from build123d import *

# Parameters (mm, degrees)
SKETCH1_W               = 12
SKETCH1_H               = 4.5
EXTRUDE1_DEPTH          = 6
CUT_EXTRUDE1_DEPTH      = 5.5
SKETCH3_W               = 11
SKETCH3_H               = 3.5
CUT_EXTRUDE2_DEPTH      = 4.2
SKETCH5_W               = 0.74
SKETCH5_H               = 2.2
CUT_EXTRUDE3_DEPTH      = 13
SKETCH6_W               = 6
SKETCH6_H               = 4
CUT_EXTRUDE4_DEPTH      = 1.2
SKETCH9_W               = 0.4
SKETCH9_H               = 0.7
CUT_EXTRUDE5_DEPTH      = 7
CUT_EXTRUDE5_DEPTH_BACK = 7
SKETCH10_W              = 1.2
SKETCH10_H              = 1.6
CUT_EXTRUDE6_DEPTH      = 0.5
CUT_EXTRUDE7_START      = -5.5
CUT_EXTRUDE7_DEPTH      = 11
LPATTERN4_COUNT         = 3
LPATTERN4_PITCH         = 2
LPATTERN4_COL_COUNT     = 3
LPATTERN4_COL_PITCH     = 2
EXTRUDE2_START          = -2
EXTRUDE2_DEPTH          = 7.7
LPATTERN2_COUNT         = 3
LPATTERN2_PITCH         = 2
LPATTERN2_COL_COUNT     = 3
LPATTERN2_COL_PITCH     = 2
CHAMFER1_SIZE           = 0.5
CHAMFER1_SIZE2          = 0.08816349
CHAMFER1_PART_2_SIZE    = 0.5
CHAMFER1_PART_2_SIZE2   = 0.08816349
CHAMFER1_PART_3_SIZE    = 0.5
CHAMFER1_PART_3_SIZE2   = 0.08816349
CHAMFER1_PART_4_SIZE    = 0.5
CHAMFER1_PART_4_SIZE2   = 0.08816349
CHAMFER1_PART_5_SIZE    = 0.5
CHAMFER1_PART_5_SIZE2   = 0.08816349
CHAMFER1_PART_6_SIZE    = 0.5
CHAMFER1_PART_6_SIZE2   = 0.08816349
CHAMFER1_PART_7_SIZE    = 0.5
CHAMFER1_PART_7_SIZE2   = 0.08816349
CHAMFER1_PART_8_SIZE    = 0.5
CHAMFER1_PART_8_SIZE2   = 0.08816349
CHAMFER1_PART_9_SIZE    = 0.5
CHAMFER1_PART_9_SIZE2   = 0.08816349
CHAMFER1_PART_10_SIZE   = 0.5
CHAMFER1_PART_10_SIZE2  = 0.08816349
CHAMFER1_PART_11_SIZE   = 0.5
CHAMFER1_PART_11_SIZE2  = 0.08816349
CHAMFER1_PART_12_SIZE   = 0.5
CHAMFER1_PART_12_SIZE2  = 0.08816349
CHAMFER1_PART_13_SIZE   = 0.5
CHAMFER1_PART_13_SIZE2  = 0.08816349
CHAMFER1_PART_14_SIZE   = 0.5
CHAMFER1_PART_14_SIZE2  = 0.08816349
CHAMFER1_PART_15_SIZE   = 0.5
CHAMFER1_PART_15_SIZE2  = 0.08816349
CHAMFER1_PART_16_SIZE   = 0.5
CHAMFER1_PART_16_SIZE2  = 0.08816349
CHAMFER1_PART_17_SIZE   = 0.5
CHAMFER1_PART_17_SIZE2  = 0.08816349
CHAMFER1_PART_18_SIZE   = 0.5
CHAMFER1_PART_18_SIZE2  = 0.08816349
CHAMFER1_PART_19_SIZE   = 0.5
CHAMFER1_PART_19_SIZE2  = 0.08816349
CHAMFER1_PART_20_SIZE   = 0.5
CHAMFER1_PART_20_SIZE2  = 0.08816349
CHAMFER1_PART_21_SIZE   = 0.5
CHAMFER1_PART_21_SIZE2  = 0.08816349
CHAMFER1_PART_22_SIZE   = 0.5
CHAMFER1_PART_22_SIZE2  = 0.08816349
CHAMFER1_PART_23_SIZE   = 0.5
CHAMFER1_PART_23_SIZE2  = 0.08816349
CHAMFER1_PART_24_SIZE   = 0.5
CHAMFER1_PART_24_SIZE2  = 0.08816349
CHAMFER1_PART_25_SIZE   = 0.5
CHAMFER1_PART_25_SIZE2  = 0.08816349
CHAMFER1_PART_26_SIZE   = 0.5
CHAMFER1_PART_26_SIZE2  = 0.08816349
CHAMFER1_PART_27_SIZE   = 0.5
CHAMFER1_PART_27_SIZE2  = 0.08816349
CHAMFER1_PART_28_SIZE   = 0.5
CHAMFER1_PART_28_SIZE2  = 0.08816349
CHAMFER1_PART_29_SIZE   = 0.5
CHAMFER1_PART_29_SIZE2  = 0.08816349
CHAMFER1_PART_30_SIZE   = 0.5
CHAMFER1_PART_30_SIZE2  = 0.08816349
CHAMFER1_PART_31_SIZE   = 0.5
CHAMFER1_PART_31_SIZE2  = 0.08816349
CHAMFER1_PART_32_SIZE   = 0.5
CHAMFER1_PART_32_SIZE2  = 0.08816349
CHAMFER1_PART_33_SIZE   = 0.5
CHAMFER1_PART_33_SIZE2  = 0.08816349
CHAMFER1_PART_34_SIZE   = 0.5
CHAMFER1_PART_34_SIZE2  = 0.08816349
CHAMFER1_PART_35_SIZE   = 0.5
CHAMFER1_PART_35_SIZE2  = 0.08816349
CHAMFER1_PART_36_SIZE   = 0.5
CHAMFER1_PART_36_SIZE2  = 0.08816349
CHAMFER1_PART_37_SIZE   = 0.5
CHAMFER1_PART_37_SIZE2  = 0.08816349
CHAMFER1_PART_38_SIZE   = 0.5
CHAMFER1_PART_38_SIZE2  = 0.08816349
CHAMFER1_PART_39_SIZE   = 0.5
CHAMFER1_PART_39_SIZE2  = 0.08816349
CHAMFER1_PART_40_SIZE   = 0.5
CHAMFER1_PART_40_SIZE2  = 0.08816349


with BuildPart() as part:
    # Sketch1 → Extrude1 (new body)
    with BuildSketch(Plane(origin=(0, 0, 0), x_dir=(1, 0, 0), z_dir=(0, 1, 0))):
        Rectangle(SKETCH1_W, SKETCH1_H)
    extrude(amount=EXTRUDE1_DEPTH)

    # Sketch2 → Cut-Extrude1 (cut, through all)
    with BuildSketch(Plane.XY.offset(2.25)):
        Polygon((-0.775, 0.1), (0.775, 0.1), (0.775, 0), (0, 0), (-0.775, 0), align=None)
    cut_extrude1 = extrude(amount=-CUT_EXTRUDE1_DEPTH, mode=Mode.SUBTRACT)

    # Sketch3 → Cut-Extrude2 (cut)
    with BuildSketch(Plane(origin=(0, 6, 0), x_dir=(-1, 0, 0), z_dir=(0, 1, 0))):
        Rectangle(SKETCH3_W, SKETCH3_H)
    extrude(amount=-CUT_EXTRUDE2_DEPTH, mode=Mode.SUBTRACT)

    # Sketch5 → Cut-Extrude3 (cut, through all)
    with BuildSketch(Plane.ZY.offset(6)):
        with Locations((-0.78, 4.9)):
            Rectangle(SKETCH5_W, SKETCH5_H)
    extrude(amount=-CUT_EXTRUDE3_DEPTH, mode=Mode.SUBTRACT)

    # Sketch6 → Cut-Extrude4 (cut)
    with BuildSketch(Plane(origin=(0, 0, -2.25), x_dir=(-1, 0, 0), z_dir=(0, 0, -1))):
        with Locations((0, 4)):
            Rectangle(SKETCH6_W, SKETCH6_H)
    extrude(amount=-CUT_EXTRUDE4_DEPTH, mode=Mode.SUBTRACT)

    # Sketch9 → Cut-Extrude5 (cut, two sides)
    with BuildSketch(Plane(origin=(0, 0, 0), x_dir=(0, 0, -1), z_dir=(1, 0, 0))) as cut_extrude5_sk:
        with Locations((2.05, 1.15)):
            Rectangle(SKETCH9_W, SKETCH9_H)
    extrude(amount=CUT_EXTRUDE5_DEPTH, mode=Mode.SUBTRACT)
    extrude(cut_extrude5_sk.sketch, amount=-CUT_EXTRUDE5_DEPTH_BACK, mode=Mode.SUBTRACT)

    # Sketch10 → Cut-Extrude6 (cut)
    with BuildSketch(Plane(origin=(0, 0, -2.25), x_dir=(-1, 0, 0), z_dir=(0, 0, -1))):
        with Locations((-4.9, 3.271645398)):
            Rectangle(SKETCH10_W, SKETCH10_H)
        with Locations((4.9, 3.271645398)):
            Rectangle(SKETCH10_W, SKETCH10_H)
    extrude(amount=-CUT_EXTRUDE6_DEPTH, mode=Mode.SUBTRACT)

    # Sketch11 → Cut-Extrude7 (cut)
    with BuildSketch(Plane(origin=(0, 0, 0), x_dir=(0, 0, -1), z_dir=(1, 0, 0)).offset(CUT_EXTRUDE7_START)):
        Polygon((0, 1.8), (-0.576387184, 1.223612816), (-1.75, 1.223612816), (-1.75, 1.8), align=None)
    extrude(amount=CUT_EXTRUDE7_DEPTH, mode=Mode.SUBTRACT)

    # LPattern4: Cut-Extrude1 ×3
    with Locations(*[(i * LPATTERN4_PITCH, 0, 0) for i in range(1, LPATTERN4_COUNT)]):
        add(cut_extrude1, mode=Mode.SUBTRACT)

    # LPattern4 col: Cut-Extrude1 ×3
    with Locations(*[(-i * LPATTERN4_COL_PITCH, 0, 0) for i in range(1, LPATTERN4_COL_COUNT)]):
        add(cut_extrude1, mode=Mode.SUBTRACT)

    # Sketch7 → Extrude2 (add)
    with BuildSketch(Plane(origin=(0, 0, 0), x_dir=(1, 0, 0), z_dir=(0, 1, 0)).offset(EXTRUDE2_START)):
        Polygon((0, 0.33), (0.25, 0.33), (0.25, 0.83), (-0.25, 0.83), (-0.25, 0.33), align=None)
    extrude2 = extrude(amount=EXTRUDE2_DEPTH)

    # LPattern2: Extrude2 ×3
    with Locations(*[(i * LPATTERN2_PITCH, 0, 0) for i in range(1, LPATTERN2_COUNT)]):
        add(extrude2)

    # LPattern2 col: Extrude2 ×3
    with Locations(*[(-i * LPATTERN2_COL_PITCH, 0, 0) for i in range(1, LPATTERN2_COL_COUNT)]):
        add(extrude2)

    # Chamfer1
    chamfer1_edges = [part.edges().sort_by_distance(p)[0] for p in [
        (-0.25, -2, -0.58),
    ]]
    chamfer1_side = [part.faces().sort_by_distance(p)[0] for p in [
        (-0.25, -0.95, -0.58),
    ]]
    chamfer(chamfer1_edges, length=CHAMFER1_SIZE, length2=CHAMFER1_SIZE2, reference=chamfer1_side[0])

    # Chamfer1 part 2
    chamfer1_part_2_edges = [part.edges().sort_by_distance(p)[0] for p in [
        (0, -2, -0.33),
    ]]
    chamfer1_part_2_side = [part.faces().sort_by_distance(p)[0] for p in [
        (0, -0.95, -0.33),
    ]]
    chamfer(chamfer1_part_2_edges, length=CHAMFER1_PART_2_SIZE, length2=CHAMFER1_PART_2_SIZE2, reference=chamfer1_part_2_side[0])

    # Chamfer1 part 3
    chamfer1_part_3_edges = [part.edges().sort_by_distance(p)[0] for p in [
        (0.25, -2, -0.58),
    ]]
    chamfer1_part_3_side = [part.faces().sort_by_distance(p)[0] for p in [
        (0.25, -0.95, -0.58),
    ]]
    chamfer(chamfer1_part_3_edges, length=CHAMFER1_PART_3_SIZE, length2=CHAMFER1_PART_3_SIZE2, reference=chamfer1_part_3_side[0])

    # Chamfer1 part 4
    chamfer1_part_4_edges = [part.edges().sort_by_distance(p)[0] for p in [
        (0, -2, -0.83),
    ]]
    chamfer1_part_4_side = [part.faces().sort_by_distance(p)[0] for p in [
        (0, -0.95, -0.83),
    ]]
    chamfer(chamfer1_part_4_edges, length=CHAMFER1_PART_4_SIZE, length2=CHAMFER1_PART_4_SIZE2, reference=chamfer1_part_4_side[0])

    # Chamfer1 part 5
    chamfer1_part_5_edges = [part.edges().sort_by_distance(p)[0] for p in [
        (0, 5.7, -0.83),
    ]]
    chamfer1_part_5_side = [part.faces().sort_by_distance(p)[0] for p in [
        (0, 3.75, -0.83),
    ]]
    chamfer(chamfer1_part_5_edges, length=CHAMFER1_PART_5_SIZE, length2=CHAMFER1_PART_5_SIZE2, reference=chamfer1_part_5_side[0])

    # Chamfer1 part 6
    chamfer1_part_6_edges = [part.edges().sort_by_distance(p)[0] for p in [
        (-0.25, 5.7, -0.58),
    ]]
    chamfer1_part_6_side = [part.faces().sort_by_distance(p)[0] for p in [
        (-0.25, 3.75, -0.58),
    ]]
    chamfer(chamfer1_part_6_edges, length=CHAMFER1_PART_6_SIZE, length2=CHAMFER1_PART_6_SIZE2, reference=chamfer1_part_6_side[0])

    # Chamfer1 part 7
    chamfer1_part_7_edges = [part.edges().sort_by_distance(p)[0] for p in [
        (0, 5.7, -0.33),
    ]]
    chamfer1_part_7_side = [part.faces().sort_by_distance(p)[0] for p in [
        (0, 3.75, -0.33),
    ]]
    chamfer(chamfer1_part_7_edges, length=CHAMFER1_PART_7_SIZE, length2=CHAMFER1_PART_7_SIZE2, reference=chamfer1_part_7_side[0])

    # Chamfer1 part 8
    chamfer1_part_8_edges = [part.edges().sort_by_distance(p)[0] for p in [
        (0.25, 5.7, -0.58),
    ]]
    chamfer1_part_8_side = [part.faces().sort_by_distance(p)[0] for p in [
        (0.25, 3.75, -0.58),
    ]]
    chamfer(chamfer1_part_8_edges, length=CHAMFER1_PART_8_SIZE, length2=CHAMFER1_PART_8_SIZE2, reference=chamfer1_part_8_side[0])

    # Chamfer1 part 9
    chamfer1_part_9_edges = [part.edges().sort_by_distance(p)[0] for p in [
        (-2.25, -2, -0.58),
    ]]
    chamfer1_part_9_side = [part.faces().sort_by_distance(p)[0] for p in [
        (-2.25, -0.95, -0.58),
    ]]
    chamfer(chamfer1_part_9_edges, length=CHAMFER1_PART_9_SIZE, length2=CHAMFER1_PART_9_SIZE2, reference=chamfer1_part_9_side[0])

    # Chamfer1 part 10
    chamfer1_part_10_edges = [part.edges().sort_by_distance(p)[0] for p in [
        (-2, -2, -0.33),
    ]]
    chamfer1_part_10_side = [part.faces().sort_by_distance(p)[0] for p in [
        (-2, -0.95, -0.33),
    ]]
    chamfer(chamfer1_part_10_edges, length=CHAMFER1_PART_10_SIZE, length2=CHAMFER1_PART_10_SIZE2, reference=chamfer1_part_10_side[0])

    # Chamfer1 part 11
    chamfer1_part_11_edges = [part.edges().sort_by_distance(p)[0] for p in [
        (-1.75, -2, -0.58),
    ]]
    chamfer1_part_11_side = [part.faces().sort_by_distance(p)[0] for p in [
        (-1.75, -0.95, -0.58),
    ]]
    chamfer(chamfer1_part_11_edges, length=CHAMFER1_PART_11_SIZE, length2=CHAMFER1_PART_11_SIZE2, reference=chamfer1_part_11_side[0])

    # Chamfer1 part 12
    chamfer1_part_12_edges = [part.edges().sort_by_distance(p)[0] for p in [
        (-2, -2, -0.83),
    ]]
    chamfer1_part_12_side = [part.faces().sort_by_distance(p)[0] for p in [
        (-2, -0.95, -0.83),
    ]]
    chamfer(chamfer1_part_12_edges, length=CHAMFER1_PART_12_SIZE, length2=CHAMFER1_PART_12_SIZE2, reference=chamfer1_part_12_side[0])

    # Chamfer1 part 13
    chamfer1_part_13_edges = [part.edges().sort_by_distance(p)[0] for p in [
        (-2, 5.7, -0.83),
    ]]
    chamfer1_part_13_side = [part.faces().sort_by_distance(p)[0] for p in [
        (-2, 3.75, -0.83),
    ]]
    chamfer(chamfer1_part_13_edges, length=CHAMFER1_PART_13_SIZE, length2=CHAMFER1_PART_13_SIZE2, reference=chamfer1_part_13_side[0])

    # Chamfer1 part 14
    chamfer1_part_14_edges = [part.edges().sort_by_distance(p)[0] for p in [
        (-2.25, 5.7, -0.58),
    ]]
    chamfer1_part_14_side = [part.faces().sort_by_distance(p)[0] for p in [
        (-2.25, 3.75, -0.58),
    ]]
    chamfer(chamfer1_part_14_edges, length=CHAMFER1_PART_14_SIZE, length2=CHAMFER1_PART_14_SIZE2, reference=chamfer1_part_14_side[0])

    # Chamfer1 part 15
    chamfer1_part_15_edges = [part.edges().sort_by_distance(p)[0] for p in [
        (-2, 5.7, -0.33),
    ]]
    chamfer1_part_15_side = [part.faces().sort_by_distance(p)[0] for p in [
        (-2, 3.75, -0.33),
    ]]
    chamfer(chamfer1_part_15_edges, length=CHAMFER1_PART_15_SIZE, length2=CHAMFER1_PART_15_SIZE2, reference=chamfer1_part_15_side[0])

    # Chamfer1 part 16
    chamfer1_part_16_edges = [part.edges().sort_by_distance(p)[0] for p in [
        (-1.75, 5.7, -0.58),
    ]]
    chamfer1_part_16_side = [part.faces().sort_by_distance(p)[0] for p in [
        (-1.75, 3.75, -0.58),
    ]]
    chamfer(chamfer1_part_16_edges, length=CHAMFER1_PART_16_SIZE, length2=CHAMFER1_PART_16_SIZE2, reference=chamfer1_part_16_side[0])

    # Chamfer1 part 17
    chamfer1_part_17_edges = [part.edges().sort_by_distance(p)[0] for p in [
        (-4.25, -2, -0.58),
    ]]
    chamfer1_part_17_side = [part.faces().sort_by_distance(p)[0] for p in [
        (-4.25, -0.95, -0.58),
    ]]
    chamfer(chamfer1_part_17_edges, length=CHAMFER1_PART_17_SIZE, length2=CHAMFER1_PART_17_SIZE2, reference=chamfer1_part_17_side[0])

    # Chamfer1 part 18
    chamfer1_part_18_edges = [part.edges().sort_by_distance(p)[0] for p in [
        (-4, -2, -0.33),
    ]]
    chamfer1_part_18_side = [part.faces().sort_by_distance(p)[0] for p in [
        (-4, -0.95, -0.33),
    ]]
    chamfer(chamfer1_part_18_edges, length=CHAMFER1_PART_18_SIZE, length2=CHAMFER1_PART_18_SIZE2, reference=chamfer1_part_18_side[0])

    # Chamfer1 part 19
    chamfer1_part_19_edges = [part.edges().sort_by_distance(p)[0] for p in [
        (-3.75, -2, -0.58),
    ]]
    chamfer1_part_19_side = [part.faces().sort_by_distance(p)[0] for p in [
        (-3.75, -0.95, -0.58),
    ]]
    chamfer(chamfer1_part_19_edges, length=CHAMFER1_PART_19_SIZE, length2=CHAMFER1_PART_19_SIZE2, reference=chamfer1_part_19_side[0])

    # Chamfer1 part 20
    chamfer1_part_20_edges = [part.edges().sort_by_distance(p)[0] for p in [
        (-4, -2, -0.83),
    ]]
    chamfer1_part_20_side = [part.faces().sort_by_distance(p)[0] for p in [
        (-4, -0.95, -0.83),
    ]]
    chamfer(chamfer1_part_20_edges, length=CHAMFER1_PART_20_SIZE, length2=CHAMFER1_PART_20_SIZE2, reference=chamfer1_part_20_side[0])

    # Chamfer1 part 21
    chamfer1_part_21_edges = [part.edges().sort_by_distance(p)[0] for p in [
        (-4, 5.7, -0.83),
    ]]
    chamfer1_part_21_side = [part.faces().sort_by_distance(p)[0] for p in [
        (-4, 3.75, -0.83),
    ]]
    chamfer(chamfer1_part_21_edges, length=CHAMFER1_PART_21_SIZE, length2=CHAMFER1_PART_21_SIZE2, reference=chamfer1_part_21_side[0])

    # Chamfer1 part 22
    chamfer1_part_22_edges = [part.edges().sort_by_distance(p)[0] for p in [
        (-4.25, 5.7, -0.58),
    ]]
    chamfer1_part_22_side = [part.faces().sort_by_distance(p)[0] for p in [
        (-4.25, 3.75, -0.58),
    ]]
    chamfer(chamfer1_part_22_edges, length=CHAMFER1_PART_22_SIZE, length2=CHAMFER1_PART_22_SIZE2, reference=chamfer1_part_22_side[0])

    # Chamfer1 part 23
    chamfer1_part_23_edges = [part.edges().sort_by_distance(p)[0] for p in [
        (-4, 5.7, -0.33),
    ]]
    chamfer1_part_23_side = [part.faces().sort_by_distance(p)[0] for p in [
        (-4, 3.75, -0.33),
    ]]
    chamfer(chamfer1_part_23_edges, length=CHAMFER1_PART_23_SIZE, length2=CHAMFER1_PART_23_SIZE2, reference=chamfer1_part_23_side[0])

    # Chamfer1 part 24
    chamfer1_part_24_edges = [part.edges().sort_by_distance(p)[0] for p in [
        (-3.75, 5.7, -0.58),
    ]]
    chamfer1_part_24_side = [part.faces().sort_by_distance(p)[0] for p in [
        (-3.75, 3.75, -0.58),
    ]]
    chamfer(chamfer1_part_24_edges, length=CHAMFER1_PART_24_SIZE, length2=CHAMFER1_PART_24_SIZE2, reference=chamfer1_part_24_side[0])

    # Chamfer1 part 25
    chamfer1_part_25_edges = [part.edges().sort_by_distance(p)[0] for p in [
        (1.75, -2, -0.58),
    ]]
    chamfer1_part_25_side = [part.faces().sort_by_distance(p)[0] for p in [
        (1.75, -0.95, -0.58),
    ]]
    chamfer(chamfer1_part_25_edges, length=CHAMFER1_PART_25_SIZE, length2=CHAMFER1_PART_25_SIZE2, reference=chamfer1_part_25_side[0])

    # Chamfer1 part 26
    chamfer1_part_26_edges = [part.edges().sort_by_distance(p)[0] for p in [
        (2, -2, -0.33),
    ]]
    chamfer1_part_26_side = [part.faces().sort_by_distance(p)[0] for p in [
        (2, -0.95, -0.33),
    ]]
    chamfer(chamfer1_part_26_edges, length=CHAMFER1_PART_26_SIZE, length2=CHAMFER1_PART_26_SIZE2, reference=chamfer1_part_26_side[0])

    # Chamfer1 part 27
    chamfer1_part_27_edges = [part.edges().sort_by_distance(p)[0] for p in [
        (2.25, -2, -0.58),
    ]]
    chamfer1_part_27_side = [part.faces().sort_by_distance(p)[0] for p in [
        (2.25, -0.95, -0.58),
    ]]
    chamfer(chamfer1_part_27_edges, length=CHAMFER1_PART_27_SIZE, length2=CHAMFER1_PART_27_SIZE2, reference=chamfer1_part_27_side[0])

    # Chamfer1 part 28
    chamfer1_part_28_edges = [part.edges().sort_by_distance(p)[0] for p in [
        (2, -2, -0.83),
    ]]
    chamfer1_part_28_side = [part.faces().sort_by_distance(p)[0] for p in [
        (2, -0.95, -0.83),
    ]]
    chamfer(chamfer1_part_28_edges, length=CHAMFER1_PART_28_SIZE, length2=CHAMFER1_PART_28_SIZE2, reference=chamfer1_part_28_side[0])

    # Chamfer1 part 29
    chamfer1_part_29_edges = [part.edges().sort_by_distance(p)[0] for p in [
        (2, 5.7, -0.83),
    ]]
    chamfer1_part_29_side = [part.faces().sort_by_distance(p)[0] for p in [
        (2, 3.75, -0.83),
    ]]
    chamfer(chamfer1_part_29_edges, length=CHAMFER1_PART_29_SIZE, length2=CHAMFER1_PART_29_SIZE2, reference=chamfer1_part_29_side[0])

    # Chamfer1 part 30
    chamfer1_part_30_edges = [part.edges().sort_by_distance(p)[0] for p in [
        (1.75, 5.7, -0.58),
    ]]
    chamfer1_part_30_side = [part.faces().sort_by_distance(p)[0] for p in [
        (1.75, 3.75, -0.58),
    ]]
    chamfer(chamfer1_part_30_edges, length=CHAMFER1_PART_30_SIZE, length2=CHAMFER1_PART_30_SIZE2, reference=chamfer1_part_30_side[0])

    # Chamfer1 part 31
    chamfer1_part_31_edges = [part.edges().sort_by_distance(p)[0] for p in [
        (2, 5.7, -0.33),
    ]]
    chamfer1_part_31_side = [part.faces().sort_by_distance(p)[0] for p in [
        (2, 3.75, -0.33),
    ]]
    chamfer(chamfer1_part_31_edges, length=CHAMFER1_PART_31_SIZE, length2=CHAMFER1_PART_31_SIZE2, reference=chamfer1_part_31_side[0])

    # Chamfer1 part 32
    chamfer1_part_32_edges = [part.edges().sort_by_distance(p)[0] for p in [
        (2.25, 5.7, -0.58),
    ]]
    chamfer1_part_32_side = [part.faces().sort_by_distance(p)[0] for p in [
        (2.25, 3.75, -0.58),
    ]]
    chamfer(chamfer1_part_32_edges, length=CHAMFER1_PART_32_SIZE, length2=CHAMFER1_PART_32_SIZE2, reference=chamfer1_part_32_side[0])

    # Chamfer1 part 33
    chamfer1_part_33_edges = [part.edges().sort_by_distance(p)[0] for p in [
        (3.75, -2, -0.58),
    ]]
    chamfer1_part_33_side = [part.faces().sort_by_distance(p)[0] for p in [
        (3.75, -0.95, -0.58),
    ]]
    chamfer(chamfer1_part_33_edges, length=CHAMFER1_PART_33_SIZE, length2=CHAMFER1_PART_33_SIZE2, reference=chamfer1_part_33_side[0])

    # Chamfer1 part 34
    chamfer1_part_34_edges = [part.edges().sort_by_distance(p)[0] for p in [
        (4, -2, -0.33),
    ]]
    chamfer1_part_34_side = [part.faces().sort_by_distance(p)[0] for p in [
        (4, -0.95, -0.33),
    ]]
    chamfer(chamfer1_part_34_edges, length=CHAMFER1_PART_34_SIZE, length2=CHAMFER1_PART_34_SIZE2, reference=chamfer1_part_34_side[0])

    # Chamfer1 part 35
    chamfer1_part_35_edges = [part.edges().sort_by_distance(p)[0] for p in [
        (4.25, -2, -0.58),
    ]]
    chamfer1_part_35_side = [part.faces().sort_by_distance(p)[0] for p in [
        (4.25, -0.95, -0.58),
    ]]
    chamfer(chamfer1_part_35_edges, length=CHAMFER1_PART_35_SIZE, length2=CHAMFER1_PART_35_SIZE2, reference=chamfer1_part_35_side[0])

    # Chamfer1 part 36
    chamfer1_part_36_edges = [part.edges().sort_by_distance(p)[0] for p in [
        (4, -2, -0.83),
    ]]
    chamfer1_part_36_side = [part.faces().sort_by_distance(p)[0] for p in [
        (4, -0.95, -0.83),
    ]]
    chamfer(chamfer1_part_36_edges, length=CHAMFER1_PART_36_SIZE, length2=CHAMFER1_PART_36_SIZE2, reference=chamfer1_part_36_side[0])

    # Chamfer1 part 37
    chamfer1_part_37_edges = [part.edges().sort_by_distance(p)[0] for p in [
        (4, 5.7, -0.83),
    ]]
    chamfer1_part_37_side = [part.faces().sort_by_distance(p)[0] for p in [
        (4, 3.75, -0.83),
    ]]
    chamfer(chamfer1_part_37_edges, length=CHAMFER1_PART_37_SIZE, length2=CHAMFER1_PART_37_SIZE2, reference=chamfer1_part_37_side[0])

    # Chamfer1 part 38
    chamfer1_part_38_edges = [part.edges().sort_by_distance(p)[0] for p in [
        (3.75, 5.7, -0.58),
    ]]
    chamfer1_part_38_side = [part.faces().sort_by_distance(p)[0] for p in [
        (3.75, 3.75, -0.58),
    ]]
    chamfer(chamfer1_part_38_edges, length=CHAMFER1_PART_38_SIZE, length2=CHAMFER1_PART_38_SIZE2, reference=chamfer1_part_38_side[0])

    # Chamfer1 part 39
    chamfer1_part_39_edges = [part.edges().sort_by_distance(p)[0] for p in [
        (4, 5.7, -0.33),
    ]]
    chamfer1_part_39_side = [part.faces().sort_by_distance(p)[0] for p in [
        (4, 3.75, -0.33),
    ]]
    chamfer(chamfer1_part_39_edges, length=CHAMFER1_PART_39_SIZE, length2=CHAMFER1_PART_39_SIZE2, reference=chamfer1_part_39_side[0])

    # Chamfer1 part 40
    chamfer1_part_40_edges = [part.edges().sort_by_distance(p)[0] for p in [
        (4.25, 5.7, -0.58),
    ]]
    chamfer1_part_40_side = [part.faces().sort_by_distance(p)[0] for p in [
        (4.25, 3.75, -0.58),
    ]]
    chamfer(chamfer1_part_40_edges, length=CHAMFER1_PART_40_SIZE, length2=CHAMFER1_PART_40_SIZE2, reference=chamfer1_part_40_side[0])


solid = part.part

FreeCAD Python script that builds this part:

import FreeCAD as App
import Part
import Sketcher

V = App.Vector
Q = App.Units.Quantity


def edges_at(feature, points):
    """Names of the edges that pass closest to the given points."""
    edges = feature.Shape.Edges
    near = lambda p: min(range(len(edges)), key=lambda i: edges[i].distToShape(Part.Vertex(*p))[0])
    return sorted({f"Edge{near(p) + 1}" for p in points})


def add_polygon(sketch, points):
    """Adds a closed chain of lines whose ends are joined by coincident constraints."""
    first, n = sketch.GeometryCount, len(points)
    for a, b in zip(points, points[1:] + points[:1]):
        sketch.addGeometry(Part.LineSegment(App.Vector(*a, 0), App.Vector(*b, 0)), False)
    for i in range(n):
        sketch.addConstraint(Sketcher.Constraint("Coincident", first + i, 2, first + (i + 1) % n, 1))

doc = App.newDocument("Part")
body = doc.addObject("PartDesign::Body", "Body")

# Sketch on XZ plane
sketch1 = doc.addObject("Sketcher::SketchObject", "Sketch")
body.addObject(sketch1)
sketch1.AttachmentSupport = (doc.XZ_Plane, [""])
sketch1.MapMode = "FlatFace"
add_polygon(sketch1, [(-6, -2.25), (-6, 2.25), (6, 2.25), (6, -2.25)])  # lines 0-3
sketch1.addConstraint([
    Sketcher.Constraint("Vertical", 0),
    Sketcher.Constraint("Horizontal", 1),
    Sketcher.Constraint("Vertical", 2),
    Sketcher.Constraint("Horizontal", 3),
    Sketcher.Constraint("Symmetric", 0, 2, 2, 2, -1, 1),
    Sketcher.Constraint("DistanceX", 1, 1, 1, 2, Q("12 mm")),
    Sketcher.Constraint("DistanceY", 0, 1, 0, 2, Q("4.5 mm")),
])
pad1 = doc.addObject("PartDesign::Pad", "Pad")
body.addObject(pad1)
pad1.Profile = sketch1
pad1.Length = 6
pad1.Reversed = True

# Sketch on XY plane
sketch2 = doc.addObject("Sketcher::SketchObject", "Sketch001")
body.addObject(sketch2)
sketch2.AttachmentSupport = (doc.XY_Plane, [""])
sketch2.MapMode = "FlatFace"
sketch2.AttachmentOffset = App.Placement(V(0, 0, 2.25), App.Rotation())
add_polygon(sketch2, [(0.775, 0.1), (-0.775, 0.1), (-0.775, 0), (0.775, 0)])  # lines 0-3
sketch2.addConstraint([
    Sketcher.Constraint("Horizontal", 0),
    Sketcher.Constraint("Vertical", 1),
    Sketcher.Constraint("Horizontal", 2),
    Sketcher.Constraint("Vertical", 3),
    Sketcher.Constraint("Symmetric", 1, 2, 2, 2, -1, 1),
    Sketcher.Constraint("DistanceY", 1, 2, 1, 1, Q("0.1 mm")),
    Sketcher.Constraint("DistanceX", 0, 2, 0, 1, Q("1.55 mm")),
])
pocket1 = doc.addObject("PartDesign::Pocket", "Pocket")
body.addObject(pocket1)
pocket1.Profile = sketch2
pocket1.Type = "ThroughAll"

# Sketch on XZ plane
sketch3 = doc.addObject("Sketcher::SketchObject", "Sketch002")
body.addObject(sketch3)
sketch3.AttachmentSupport = (doc.XZ_Plane, [""])
sketch3.MapMode = "FlatFace"
sketch3.AttachmentOffset = App.Placement(V(0, 0, -6), App.Rotation())
add_polygon(sketch3, [(5.5, 1.75), (5.5, -1.75), (-5.5, -1.75), (-5.5, 1.75)])  # lines 0-3
sketch3.addConstraint([
    Sketcher.Constraint("Vertical", 0),
    Sketcher.Constraint("Horizontal", 1),
    Sketcher.Constraint("Vertical", 2),
    Sketcher.Constraint("Horizontal", 3),
    Sketcher.Constraint("Symmetric", 0, 2, 2, 2, -1, 1),
    Sketcher.Constraint("DistanceX", 1, 2, 1, 1, Q("11 mm")),
    Sketcher.Constraint("DistanceY", 0, 2, 0, 1, Q("3.5 mm")),
])
pocket2 = doc.addObject("PartDesign::Pocket", "Pocket001")
body.addObject(pocket2)
pocket2.Profile = sketch3
pocket2.Length = 4.2
pocket2.Reversed = True

# Sketch on YZ plane
sketch4 = doc.addObject("Sketcher::SketchObject", "Sketch003")
body.addObject(sketch4)
sketch4.AttachmentSupport = (doc.YZ_Plane, [""])
sketch4.MapMode = "FlatFace"
sketch4.AttachmentOffset = App.Placement(V(0, 0, -6), App.Rotation())
add_polygon(sketch4, [(6, -1.15), (3.8, -1.15), (3.8, -0.41), (6, -0.41)])  # lines 0-3
sketch4.addConstraint([
    Sketcher.Constraint("Horizontal", 0),
    Sketcher.Constraint("Vertical", 1),
    Sketcher.Constraint("Horizontal", 2),
    Sketcher.Constraint("Vertical", 3),
    Sketcher.Constraint("DistanceX", 0, 2, 0, 1, Q("2.2 mm")),
    Sketcher.Constraint("DistanceX", -1, 1, 2, 2, Q("6 mm")),
    Sketcher.Constraint("DistanceY", 1, 1, 1, 2, Q("0.74 mm")),
    Sketcher.Constraint("DistanceY", 0, 2, -1, 1, Q("1.15 mm")),
])
pocket3 = doc.addObject("PartDesign::Pocket", "Pocket002")
body.addObject(pocket3)
pocket3.Profile = sketch4
pocket3.Type = "ThroughAll"
pocket3.Reversed = True

# Sketch on XY plane
sketch5 = doc.addObject("Sketcher::SketchObject", "Sketch004")
body.addObject(sketch5)
sketch5.AttachmentSupport = (doc.XY_Plane, [""])
sketch5.MapMode = "FlatFace"
sketch5.AttachmentOffset = App.Placement(V(0, 0, -2.25), App.Rotation())
add_polygon(sketch5, [(3, 6), (3, 2), (-3, 2), (-3, 6)])  # lines 0-3
sketch5.addConstraint([
    Sketcher.Constraint("Vertical", 0),
    Sketcher.Constraint("Horizontal", 1),
    Sketcher.Constraint("Vertical", 2),
    Sketcher.Constraint("Horizontal", 3),
    Sketcher.Constraint("DistanceX", 1, 2, 1, 1, Q("6 mm")),
    Sketcher.Constraint("DistanceY", 0, 2, 0, 1, Q("4 mm")),
    Sketcher.Constraint("DistanceX", -1, 1, 0, 2, Q("3 mm")),
    Sketcher.Constraint("DistanceY", -1, 1, 0, 2, Q("2 mm")),
])
pocket4 = doc.addObject("PartDesign::Pocket", "Pocket003")
body.addObject(pocket4)
pocket4.Profile = sketch5
pocket4.Length = 1.2
pocket4.Reversed = True

# Sketch on YZ plane
sketch6 = doc.addObject("Sketcher::SketchObject", "Sketch005")
body.addObject(sketch6)
sketch6.AttachmentSupport = (doc.YZ_Plane, [""])
sketch6.MapMode = "FlatFace"
add_polygon(sketch6, [(1.5, -1.85), (0.8, -1.85), (0.8, -2.25), (1.5, -2.25)])  # lines 0-3
sketch6.addConstraint([
    Sketcher.Constraint("Horizontal", 0),
    Sketcher.Constraint("Vertical", 1),
    Sketcher.Constraint("Horizontal", 2),
    Sketcher.Constraint("Vertical", 3),
    Sketcher.Constraint("DistanceX", 0, 2, 0, 1, Q("0.7 mm")),
    Sketcher.Constraint("DistanceY", 1, 2, 1, 1, Q("0.4 mm")),
    Sketcher.Constraint("DistanceX", -1, 1, 0, 2, Q("0.8 mm")),
    Sketcher.Constraint("DistanceY", 0, 2, -1, 1, Q("1.85 mm")),
])
pocket5 = doc.addObject("PartDesign::Pocket", "Pocket004")
body.addObject(pocket5)
pocket5.Profile = sketch6
pocket5.Type = "ThroughAll"
pocket5.Midplane = True

# Sketch on XY plane
sketch7 = doc.addObject("Sketcher::SketchObject", "Sketch006")
body.addObject(sketch7)
sketch7.AttachmentSupport = (doc.XY_Plane, [""])
sketch7.MapMode = "FlatFace"
sketch7.AttachmentOffset = App.Placement(V(0, 0, -2.25), App.Rotation())
add_polygon(sketch7, [(5.5, 4.071645), (5.5, 2.471645), (4.3, 2.471645), (4.3, 4.071645)])  # lines 0-3
add_polygon(sketch7, [(-4.3, 4.071645), (-4.3, 2.471645), (-5.5, 2.471645), (-5.5, 4.071645)])  # lines 4-7
sketch7.addConstraint([
    Sketcher.Constraint("Vertical", 0),
    Sketcher.Constraint("Horizontal", 1),
    Sketcher.Constraint("Vertical", 2),
    Sketcher.Constraint("Horizontal", 3),
    Sketcher.Constraint("Vertical", 4),
    Sketcher.Constraint("Horizontal", 5),
    Sketcher.Constraint("Vertical", 6),
    Sketcher.Constraint("Horizontal", 7),
    Sketcher.Constraint("Symmetric", 1, 2, 4, 2, -2),
    Sketcher.Constraint("Symmetric", 3, 2, 6, 2, -2),
    Sketcher.Constraint("DistanceX", 1, 2, 1, 1, Q("1.2 mm")),
    Sketcher.Constraint("DistanceY", 0, 2, 0, 1, Q("1.6 mm")),
    Sketcher.Constraint("DistanceX", 5, 2, 0, 2, Q("11 mm")),
    Sketcher.Constraint("DistanceY", -1, 1, 0, 2, Q("2.471645 mm")),
])
pocket6 = doc.addObject("PartDesign::Pocket", "Pocket005")
body.addObject(pocket6)
pocket6.Profile = sketch7
pocket6.Length = 0.5
pocket6.Reversed = True

# Sketch on YZ plane
sketch8 = doc.addObject("Sketcher::SketchObject", "Sketch007")
body.addObject(sketch8)
sketch8.AttachmentSupport = (doc.YZ_Plane, [""])
sketch8.MapMode = "FlatFace"
sketch8.AttachmentOffset = App.Placement(V(0, 0, -5.5), App.Rotation())
add_polygon(sketch8, [(1.223613, 0.576387), (1.8, 0), (1.8, 1.75), (1.223613, 1.75)])  # lines 0-3
sketch8.addConstraint([
    Sketcher.Constraint("Vertical", 1),
    Sketcher.Constraint("Horizontal", 2),
    Sketcher.Constraint("Vertical", 3),
    Sketcher.Constraint("PointOnObject", 0, 2, -1),
    Sketcher.Constraint("Angle", 0, Q("-45 deg")),
    Sketcher.Constraint("DistanceY", 1, 1, 1, 2, Q("1.75 mm")),
    Sketcher.Constraint("DistanceX", -1, 1, 0, 2, Q("1.8 mm")),
    Sketcher.Constraint("DistanceX", 2, 2, 2, 1, Q("0.576387 mm")),
])
pocket7 = doc.addObject("PartDesign::Pocket", "Pocket006")
body.addObject(pocket7)
pocket7.Profile = sketch8
pocket7.Length = 11
pocket7.Reversed = True
doc.recompute()

linearpattern = doc.addObject("PartDesign::LinearPattern", "LinearPattern")
body.addObject(linearpattern)
linearpattern.Originals = [pocket1]
linearpattern.Direction = (doc.X_Axis, [""])
linearpattern.Mode = "offset"
linearpattern.Offset = 2
linearpattern.Occurrences = 3
body.Tip = linearpattern
doc.recompute()

linearpattern2 = doc.addObject("PartDesign::LinearPattern", "LinearPattern001")
body.addObject(linearpattern2)
linearpattern2.Originals = [pocket1]
linearpattern2.Direction = (doc.X_Axis, [""])
linearpattern2.Mode = "offset"
linearpattern2.Offset = 2
linearpattern2.Occurrences = 3
linearpattern2.Reversed = True
body.Tip = linearpattern2

# Sketch on XZ plane
sketch9 = doc.addObject("Sketcher::SketchObject", "Sketch008")
body.addObject(sketch9)
sketch9.AttachmentSupport = (doc.XZ_Plane, [""])
sketch9.MapMode = "FlatFace"
sketch9.AttachmentOffset = App.Placement(V(0, 0, 2), App.Rotation())
add_polygon(sketch9, [(0.25, -0.33), (0.25, -0.83), (-0.25, -0.83), (-0.25, -0.33)])  # lines 0-3
sketch9.addConstraint([
    Sketcher.Constraint("Vertical", 0),
    Sketcher.Constraint("Horizontal", 1),
    Sketcher.Constraint("Vertical", 2),
    Sketcher.Constraint("Horizontal", 3),
    Sketcher.Constraint("Equal", 3, 0),
    Sketcher.Constraint("DistanceX", 1, 2, 1, 1, Q("0.5 mm")),
    Sketcher.Constraint("DistanceX", -1, 1, 0, 2, Q("0.25 mm")),
    Sketcher.Constraint("DistanceY", 0, 2, -1, 1, Q("0.83 mm")),
])
pad2 = doc.addObject("PartDesign::Pad", "Pad001")
body.addObject(pad2)
pad2.Profile = sketch9
pad2.Length = 7.7
pad2.Reversed = True
doc.recompute()

linearpattern3 = doc.addObject("PartDesign::LinearPattern", "LinearPattern002")
body.addObject(linearpattern3)
linearpattern3.Originals = [pad2]
linearpattern3.Direction = (doc.X_Axis, [""])
linearpattern3.Mode = "offset"
linearpattern3.Offset = 2
linearpattern3.Occurrences = 3
body.Tip = linearpattern3
doc.recompute()

linearpattern4 = doc.addObject("PartDesign::LinearPattern", "LinearPattern003")
body.addObject(linearpattern4)
linearpattern4.Originals = [pad2]
linearpattern4.Direction = (doc.X_Axis, [""])
linearpattern4.Mode = "offset"
linearpattern4.Offset = 2
linearpattern4.Occurrences = 3
linearpattern4.Reversed = True
body.Tip = linearpattern4
doc.recompute()

chamfer = doc.addObject("PartDesign::Chamfer", "Chamfer")
body.addObject(chamfer)
chamfer.Base = (linearpattern4, edges_at(linearpattern4, [(-0.25, -2, -0.58)]))
chamfer.ChamferType = "Two distances"
chamfer.Size = 0.5
chamfer.Size2 = 0.088163
doc.recompute()

chamfer2 = doc.addObject("PartDesign::Chamfer", "Chamfer001")
body.addObject(chamfer2)
chamfer2.Base = (chamfer, edges_at(chamfer, [(0.044, -2, -0.33)]))
chamfer2.ChamferType = "Two distances"
chamfer2.Size = 0.5
chamfer2.Size2 = 0.088163
chamfer2.FlipDirection = True
doc.recompute()

chamfer3 = doc.addObject("PartDesign::Chamfer", "Chamfer002")
body.addObject(chamfer3)
chamfer3.Base = (chamfer2, edges_at(chamfer2, [(0.25, -2, -0.624)]))
chamfer3.ChamferType = "Two distances"
chamfer3.Size = 0.5
chamfer3.Size2 = 0.088163
chamfer3.FlipDirection = True
doc.recompute()

chamfer4 = doc.addObject("PartDesign::Chamfer", "Chamfer003")
body.addObject(chamfer4)
chamfer4.Base = (chamfer3, edges_at(chamfer3, [(0, -2, -0.83)]))
chamfer4.ChamferType = "Two distances"
chamfer4.Size = 0.5
chamfer4.Size2 = 0.088163
chamfer4.FlipDirection = True
doc.recompute()

chamfer5 = doc.addObject("PartDesign::Chamfer", "Chamfer004")
body.addObject(chamfer5)
chamfer5.Base = (chamfer4, edges_at(chamfer4, [(0, 5.7, -0.83)]))
chamfer5.ChamferType = "Two distances"
chamfer5.Size = 0.5
chamfer5.Size2 = 0.088163
doc.recompute()

chamfer6 = doc.addObject("PartDesign::Chamfer", "Chamfer005")
body.addObject(chamfer6)
chamfer6.Base = (chamfer5, edges_at(chamfer5, [(-0.25, 5.7, -0.536)]))
chamfer6.ChamferType = "Two distances"
chamfer6.Size = 0.5
chamfer6.Size2 = 0.088163
doc.recompute()

chamfer7 = doc.addObject("PartDesign::Chamfer", "Chamfer006")
body.addObject(chamfer7)
chamfer7.Base = (chamfer6, edges_at(chamfer6, [(0.044, 5.7, -0.33)]))
chamfer7.ChamferType = "Two distances"
chamfer7.Size = 0.5
chamfer7.Size2 = 0.088163
doc.recompute()

chamfer8 = doc.addObject("PartDesign::Chamfer", "Chamfer007")
body.addObject(chamfer8)
chamfer8.Base = (chamfer7, edges_at(chamfer7, [(0.25, 5.7, -0.58)]))
chamfer8.ChamferType = "Two distances"
chamfer8.Size = 0.5
chamfer8.Size2 = 0.088163
doc.recompute()

chamfer9 = doc.addObject("PartDesign::Chamfer", "Chamfer008")
body.addObject(chamfer9)
chamfer9.Base = (chamfer8, edges_at(chamfer8, [(-2.25, -2, -0.58)]))
chamfer9.ChamferType = "Two distances"
chamfer9.Size = 0.5
chamfer9.Size2 = 0.088163
doc.recompute()

chamfer10 = doc.addObject("PartDesign::Chamfer", "Chamfer009")
body.addObject(chamfer10)
chamfer10.Base = (chamfer9, edges_at(chamfer9, [(-1.956, -2, -0.33)]))
chamfer10.ChamferType = "Two distances"
chamfer10.Size = 0.5
chamfer10.Size2 = 0.088163
chamfer10.FlipDirection = True
doc.recompute()

chamfer11 = doc.addObject("PartDesign::Chamfer", "Chamfer010")
body.addObject(chamfer11)
chamfer11.Base = (chamfer10, edges_at(chamfer10, [(-1.75, -2, -0.624)]))
chamfer11.ChamferType = "Two distances"
chamfer11.Size = 0.5
chamfer11.Size2 = 0.088163
chamfer11.FlipDirection = True
doc.recompute()

chamfer12 = doc.addObject("PartDesign::Chamfer", "Chamfer011")
body.addObject(chamfer12)
chamfer12.Base = (chamfer11, edges_at(chamfer11, [(-2, -2, -0.83)]))
chamfer12.ChamferType = "Two distances"
chamfer12.Size = 0.5
chamfer12.Size2 = 0.088163
chamfer12.FlipDirection = True
doc.recompute()

chamfer13 = doc.addObject("PartDesign::Chamfer", "Chamfer012")
body.addObject(chamfer13)
chamfer13.Base = (chamfer12, edges_at(chamfer12, [(-2, 5.7, -0.83)]))
chamfer13.ChamferType = "Two distances"
chamfer13.Size = 0.5
chamfer13.Size2 = 0.088163
doc.recompute()

chamfer14 = doc.addObject("PartDesign::Chamfer", "Chamfer013")
body.addObject(chamfer14)
chamfer14.Base = (chamfer13, edges_at(chamfer13, [(-2.25, 5.7, -0.536)]))
chamfer14.ChamferType = "Two distances"
chamfer14.Size = 0.5
chamfer14.Size2 = 0.088163
doc.recompute()

chamfer15 = doc.addObject("PartDesign::Chamfer", "Chamfer014")
body.addObject(chamfer15)
chamfer15.Base = (chamfer14, edges_at(chamfer14, [(-1.956, 5.7, -0.33)]))
chamfer15.ChamferType = "Two distances"
chamfer15.Size = 0.5
chamfer15.Size2 = 0.088163
doc.recompute()

chamfer16 = doc.addObject("PartDesign::Chamfer", "Chamfer015")
body.addObject(chamfer16)
chamfer16.Base = (chamfer15, edges_at(chamfer15, [(-1.75, 5.7, -0.58)]))
chamfer16.ChamferType = "Two distances"
chamfer16.Size = 0.5
chamfer16.Size2 = 0.088163
doc.recompute()

chamfer17 = doc.addObject("PartDesign::Chamfer", "Chamfer016")
body.addObject(chamfer17)
chamfer17.Base = (chamfer16, edges_at(chamfer16, [(-4.25, -2, -0.58)]))
chamfer17.ChamferType = "Two distances"
chamfer17.Size = 0.5
chamfer17.Size2 = 0.088163
doc.recompute()

chamfer18 = doc.addObject("PartDesign::Chamfer", "Chamfer017")
body.addObject(chamfer18)
chamfer18.Base = (chamfer17, edges_at(chamfer17, [(-3.956, -2, -0.33)]))
chamfer18.ChamferType = "Two distances"
chamfer18.Size = 0.5
chamfer18.Size2 = 0.088163
chamfer18.FlipDirection = True
doc.recompute()

chamfer19 = doc.addObject("PartDesign::Chamfer", "Chamfer018")
body.addObject(chamfer19)
chamfer19.Base = (chamfer18, edges_at(chamfer18, [(-3.75, -2, -0.624)]))
chamfer19.ChamferType = "Two distances"
chamfer19.Size = 0.5
chamfer19.Size2 = 0.088163
chamfer19.FlipDirection = True
doc.recompute()

chamfer20 = doc.addObject("PartDesign::Chamfer", "Chamfer019")
body.addObject(chamfer20)
chamfer20.Base = (chamfer19, edges_at(chamfer19, [(-4, -2, -0.83)]))
chamfer20.ChamferType = "Two distances"
chamfer20.Size = 0.5
chamfer20.Size2 = 0.088163
chamfer20.FlipDirection = True
doc.recompute()

chamfer21 = doc.addObject("PartDesign::Chamfer", "Chamfer020")
body.addObject(chamfer21)
chamfer21.Base = (chamfer20, edges_at(chamfer20, [(-4, 5.7, -0.83)]))
chamfer21.ChamferType = "Two distances"
chamfer21.Size = 0.5
chamfer21.Size2 = 0.088163
doc.recompute()

chamfer22 = doc.addObject("PartDesign::Chamfer", "Chamfer021")
body.addObject(chamfer22)
chamfer22.Base = (chamfer21, edges_at(chamfer21, [(-4.25, 5.7, -0.536)]))
chamfer22.ChamferType = "Two distances"
chamfer22.Size = 0.5
chamfer22.Size2 = 0.088163
doc.recompute()

chamfer23 = doc.addObject("PartDesign::Chamfer", "Chamfer022")
body.addObject(chamfer23)
chamfer23.Base = (chamfer22, edges_at(chamfer22, [(-3.956, 5.7, -0.33)]))
chamfer23.ChamferType = "Two distances"
chamfer23.Size = 0.5
chamfer23.Size2 = 0.088163
doc.recompute()

chamfer24 = doc.addObject("PartDesign::Chamfer", "Chamfer023")
body.addObject(chamfer24)
chamfer24.Base = (chamfer23, edges_at(chamfer23, [(-3.75, 5.7, -0.58)]))
chamfer24.ChamferType = "Two distances"
chamfer24.Size = 0.5
chamfer24.Size2 = 0.088163
doc.recompute()

chamfer25 = doc.addObject("PartDesign::Chamfer", "Chamfer024")
body.addObject(chamfer25)
chamfer25.Base = (chamfer24, edges_at(chamfer24, [(1.75, -2, -0.58)]))
chamfer25.ChamferType = "Two distances"
chamfer25.Size = 0.5
chamfer25.Size2 = 0.088163
doc.recompute()

chamfer26 = doc.addObject("PartDesign::Chamfer", "Chamfer025")
body.addObject(chamfer26)
chamfer26.Base = (chamfer25, edges_at(chamfer25, [(2.044, -2, -0.33)]))
chamfer26.ChamferType = "Two distances"
chamfer26.Size = 0.5
chamfer26.Size2 = 0.088163
chamfer26.FlipDirection = True
doc.recompute()

chamfer27 = doc.addObject("PartDesign::Chamfer", "Chamfer026")
body.addObject(chamfer27)
chamfer27.Base = (chamfer26, edges_at(chamfer26, [(2.25, -2, -0.624)]))
chamfer27.ChamferType = "Two distances"
chamfer27.Size = 0.5
chamfer27.Size2 = 0.088163
chamfer27.FlipDirection = True
doc.recompute()

chamfer28 = doc.addObject("PartDesign::Chamfer", "Chamfer027")
body.addObject(chamfer28)
chamfer28.Base = (chamfer27, edges_at(chamfer27, [(2, -2, -0.83)]))
chamfer28.ChamferType = "Two distances"
chamfer28.Size = 0.5
chamfer28.Size2 = 0.088163
chamfer28.FlipDirection = True
doc.recompute()

chamfer29 = doc.addObject("PartDesign::Chamfer", "Chamfer028")
body.addObject(chamfer29)
chamfer29.Base = (chamfer28, edges_at(chamfer28, [(2, 5.7, -0.83)]))
chamfer29.ChamferType = "Two distances"
chamfer29.Size = 0.5
chamfer29.Size2 = 0.088163
doc.recompute()

chamfer30 = doc.addObject("PartDesign::Chamfer", "Chamfer029")
body.addObject(chamfer30)
chamfer30.Base = (chamfer29, edges_at(chamfer29, [(1.75, 5.7, -0.536)]))
chamfer30.ChamferType = "Two distances"
chamfer30.Size = 0.5
chamfer30.Size2 = 0.088163
doc.recompute()

chamfer31 = doc.addObject("PartDesign::Chamfer", "Chamfer030")
body.addObject(chamfer31)
chamfer31.Base = (chamfer30, edges_at(chamfer30, [(2.044, 5.7, -0.33)]))
chamfer31.ChamferType = "Two distances"
chamfer31.Size = 0.5
chamfer31.Size2 = 0.088163
doc.recompute()

chamfer32 = doc.addObject("PartDesign::Chamfer", "Chamfer031")
body.addObject(chamfer32)
chamfer32.Base = (chamfer31, edges_at(chamfer31, [(2.25, 5.7, -0.58)]))
chamfer32.ChamferType = "Two distances"
chamfer32.Size = 0.5
chamfer32.Size2 = 0.088163
doc.recompute()

chamfer33 = doc.addObject("PartDesign::Chamfer", "Chamfer032")
body.addObject(chamfer33)
chamfer33.Base = (chamfer32, edges_at(chamfer32, [(3.75, -2, -0.58)]))
chamfer33.ChamferType = "Two distances"
chamfer33.Size = 0.5
chamfer33.Size2 = 0.088163
doc.recompute()

chamfer34 = doc.addObject("PartDesign::Chamfer", "Chamfer033")
body.addObject(chamfer34)
chamfer34.Base = (chamfer33, edges_at(chamfer33, [(4.044, -2, -0.33)]))
chamfer34.ChamferType = "Two distances"
chamfer34.Size = 0.5
chamfer34.Size2 = 0.088163
chamfer34.FlipDirection = True
doc.recompute()

chamfer35 = doc.addObject("PartDesign::Chamfer", "Chamfer034")
body.addObject(chamfer35)
chamfer35.Base = (chamfer34, edges_at(chamfer34, [(4.25, -2, -0.624)]))
chamfer35.ChamferType = "Two distances"
chamfer35.Size = 0.5
chamfer35.Size2 = 0.088163
chamfer35.FlipDirection = True
doc.recompute()

chamfer36 = doc.addObject("PartDesign::Chamfer", "Chamfer035")
body.addObject(chamfer36)
chamfer36.Base = (chamfer35, edges_at(chamfer35, [(4, -2, -0.83)]))
chamfer36.ChamferType = "Two distances"
chamfer36.Size = 0.5
chamfer36.Size2 = 0.088163
chamfer36.FlipDirection = True
doc.recompute()

chamfer37 = doc.addObject("PartDesign::Chamfer", "Chamfer036")
body.addObject(chamfer37)
chamfer37.Base = (chamfer36, edges_at(chamfer36, [(4, 5.7, -0.83)]))
chamfer37.ChamferType = "Two distances"
chamfer37.Size = 0.5
chamfer37.Size2 = 0.088163
doc.recompute()

chamfer38 = doc.addObject("PartDesign::Chamfer", "Chamfer037")
body.addObject(chamfer38)
chamfer38.Base = (chamfer37, edges_at(chamfer37, [(3.75, 5.7, -0.536)]))
chamfer38.ChamferType = "Two distances"
chamfer38.Size = 0.5
chamfer38.Size2 = 0.088163
doc.recompute()

chamfer39 = doc.addObject("PartDesign::Chamfer", "Chamfer038")
body.addObject(chamfer39)
chamfer39.Base = (chamfer38, edges_at(chamfer38, [(4.044, 5.7, -0.33)]))
chamfer39.ChamferType = "Two distances"
chamfer39.Size = 0.5
chamfer39.Size2 = 0.088163
doc.recompute()

chamfer40 = doc.addObject("PartDesign::Chamfer", "Chamfer039")
body.addObject(chamfer40)
chamfer40.Base = (chamfer39, edges_at(chamfer39, [(4.25, 5.7, -0.58)]))
chamfer40.ChamferType = "Two distances"
chamfer40.Size = 0.5
chamfer40.Size2 = 0.088163

doc.recompute()
